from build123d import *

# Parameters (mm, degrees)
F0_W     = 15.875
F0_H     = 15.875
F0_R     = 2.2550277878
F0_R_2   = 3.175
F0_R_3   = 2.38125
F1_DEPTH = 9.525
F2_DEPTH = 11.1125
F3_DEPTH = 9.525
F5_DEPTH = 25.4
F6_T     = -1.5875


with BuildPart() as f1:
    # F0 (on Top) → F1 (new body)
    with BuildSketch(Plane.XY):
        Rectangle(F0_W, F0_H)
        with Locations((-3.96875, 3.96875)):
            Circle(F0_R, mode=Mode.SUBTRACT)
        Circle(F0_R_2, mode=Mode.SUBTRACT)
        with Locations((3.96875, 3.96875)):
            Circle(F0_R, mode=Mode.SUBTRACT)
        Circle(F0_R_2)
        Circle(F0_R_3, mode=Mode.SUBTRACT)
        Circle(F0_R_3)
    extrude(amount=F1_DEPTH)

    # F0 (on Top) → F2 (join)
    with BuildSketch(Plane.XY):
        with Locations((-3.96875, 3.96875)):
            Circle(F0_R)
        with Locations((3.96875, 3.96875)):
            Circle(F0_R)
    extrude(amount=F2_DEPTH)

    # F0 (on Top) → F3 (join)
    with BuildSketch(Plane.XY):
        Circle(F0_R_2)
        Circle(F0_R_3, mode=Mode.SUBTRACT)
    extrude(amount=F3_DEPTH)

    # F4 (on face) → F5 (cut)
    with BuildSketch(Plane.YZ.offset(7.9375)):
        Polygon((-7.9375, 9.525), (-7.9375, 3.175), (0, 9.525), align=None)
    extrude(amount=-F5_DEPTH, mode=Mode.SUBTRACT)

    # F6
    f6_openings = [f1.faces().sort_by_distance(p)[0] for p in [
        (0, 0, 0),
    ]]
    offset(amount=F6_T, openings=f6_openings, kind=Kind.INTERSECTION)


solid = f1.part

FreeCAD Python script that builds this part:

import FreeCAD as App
import Part
import Sketcher

V = App.Vector
Q = App.Units.Quantity


def faces_at(feature, points):
    """Names of the faces that lie closest to the given points."""
    faces = feature.Shape.Faces
    near = lambda p: min(range(len(faces)), key=lambda i: faces[i].distToShape(Part.Vertex(*p))[0])
    return sorted({f"Face{near(p) + 1}" for p in points})

doc = App.newDocument("Part")
body = doc.addObject("PartDesign::Body", "Body")

# Sketch on XY plane
sketch1 = body.newObject("Sketcher::SketchObject", "Sketch")
sketch1.AttachmentSupport = (doc.getObject("XY_Plane"), [""])
sketch1.MapMode = "FlatFace"
sketch1.addGeometry([
    Part.LineSegment(V(-7.9, 7.9, 0), V(-7.9, -7.9, 0)),  # 0
    Part.LineSegment(V(-7.9, -7.9, 0), V(7.9, -7.9, 0)),  # 1
    Part.LineSegment(V(7.9, -7.9, 0), V(7.9, 7.9, 0)),  # 2
    Part.LineSegment(V(7.9, 7.9, 0), V(-7.9, 7.9, 0)),  # 3
    Part.Circle(V(-4, 4, 0), V(0, 0, 1), 2.3),  # 4
    Part.Circle(V(4, 4, 0), V(0, 0, 1), 2.3),  # 5
], False)
sketch1.addConstraint([
    Sketcher.Constraint("Coincident", 0, 2, 1, 1),
    Sketcher.Constraint("Coincident", 1, 2, 2, 1),
    Sketcher.Constraint("Coincident", 2, 2, 3, 1),
    Sketcher.Constraint("Coincident", 3, 2, 0, 1),
    Sketcher.Constraint("Vertical", 0),
    Sketcher.Constraint("Horizontal", 1),
    Sketcher.Constraint("Vertical", 2),
    Sketcher.Constraint("Horizontal", 3),
    Sketcher.Constraint("Equal", 4, 5),
    Sketcher.Constraint("Symmetric", 0, 2, 2, 2, -1, 1),
    Sketcher.Constraint("Symmetric", 4, 3, 5, 3, -2),
    Sketcher.Constraint("Equal", 3, 0),
    Sketcher.Constraint("DistanceX", 1, 1, 1, 2, Q("0.625 in")),
    Sketcher.Constraint("DistanceX", 4, 3, -1, 1, Q("0.15625 in")),
    Sketcher.Constraint("DistanceY", -1, 1, 4, 3, Q("0.15625 in")),
    Sketcher.Constraint("Diameter", 4, Q("4.510056 mm")),
])
pad1 = body.newObject("PartDesign::Pad", "Pad")
pad1.Profile = sketch1
pad1.Length = Q("0.375 in")

# Sketch on XY plane
sketch2 = body.newObject("Sketcher::SketchObject", "Sketch001")
sketch2.AttachmentSupport = (doc.getObject("XY_Plane"), [""])
sketch2.MapMode = "FlatFace"
sketch2.addGeometry([
    Part.Circle(V(-4, 4, 0), V(0, 0, 1), 2.3),
    Part.Circle(V(4, 4, 0), V(0, 0, 1), 2.3),
], False)
sketch2.addConstraint([
    Sketcher.Constraint("Equal", 0, 1),
    Sketcher.Constraint("Symmetric", 0, 3, 1, 3, -2),
    Sketcher.Constraint("DistanceX", 0, 3, -1, 1, Q("0.15625 in")),
    Sketcher.Constraint("DistanceY", -1, 1, 0, 3, Q("0.15625 in")),
    Sketcher.Constraint("Diameter", 0, Q("4.510056 mm")),
])
pad2 = body.newObject("PartDesign::Pad", "Pad001")
pad2.Profile = sketch2
pad2.Length = Q("0.4375 in")

# Sketch on XY plane
sketch3 = body.newObject("Sketcher::SketchObject", "Sketch002")
sketch3.AttachmentSupport = (doc.getObject("XY_Plane"), [""])
sketch3.MapMode = "FlatFace"
sketch3.addGeometry([
    Part.Circle(V(0, 0, 0), V(0, 0, 1), 3.2),
    Part.Circle(V(0, 0, 0), V(0, 0, 1), 2.4),
], False)
sketch3.addConstraint([
    Sketcher.Constraint("Coincident", 0, 3, -1, 1),
    Sketcher.Constraint("Coincident", 1, 3, -1, 1),
    Sketcher.Constraint("Diameter", 0, Q("0.25 in")),
    Sketcher.Constraint("Diameter", 1, Q("0.1875 in")),
])
pad3 = body.newObject("PartDesign::Pad", "Pad002")
pad3.Profile = sketch3
pad3.Length = Q("0.375 in")

# Sketch on YZ plane
sketch4 = body.newObject("Sketcher::SketchObject", "Sketch003")
sketch4.AttachmentSupport = (doc.getObject("YZ_Plane"), [""])
sketch4.MapMode = "FlatFace"
sketch4.AttachmentOffset = App.Placement(V(0, 0, 0.3125 * 25.4), App.Rotation())
sketch4.addGeometry([
    Part.LineSegment(V(-8, 10, 0), V(-8, 3, 0)),
    Part.LineSegment(V(-8, 3, 0), V(0, 10, 0)),
    Part.LineSegment(V(0, 10, 0), V(-8, 10, 0)),
], False)
sketch4.addConstraint([
    Sketcher.Constraint("Coincident", 0, 2, 1, 1),
    Sketcher.Constraint("Coincident", 1, 2, 2, 1),
    Sketcher.Constraint("Coincident", 2, 2, 0, 1),
    Sketcher.Constraint("Vertical", 0),
    Sketcher.Constraint("Horizontal", 2),
    Sketcher.Constraint("PointOnObject", 1, 2, -2),
    Sketcher.Constraint("DistanceY", 0, 2, 0, 1, Q("0.25 in")),
    Sketcher.Constraint("DistanceX", 2, 2, 2, 1, Q("0.3125 in")),
    Sketcher.Constraint("DistanceY", -1, 1, 0, 2, Q("0.125 in")),
])
pocket1 = body.newObject("PartDesign::Pocket", "Pocket")
pocket1.Profile = sketch4
pocket1.Length = Q("1 in")
doc.recompute()

thickness = body.newObject("PartDesign::Thickness", "Thickness")
thickness.Base = (pocket1, faces_at(pocket1, [(0, 0, 0)]))
thickness.Value = Q("0.0625 in")
thickness.Reversed = True
thickness.Join = "Intersection"

doc.recompute()
